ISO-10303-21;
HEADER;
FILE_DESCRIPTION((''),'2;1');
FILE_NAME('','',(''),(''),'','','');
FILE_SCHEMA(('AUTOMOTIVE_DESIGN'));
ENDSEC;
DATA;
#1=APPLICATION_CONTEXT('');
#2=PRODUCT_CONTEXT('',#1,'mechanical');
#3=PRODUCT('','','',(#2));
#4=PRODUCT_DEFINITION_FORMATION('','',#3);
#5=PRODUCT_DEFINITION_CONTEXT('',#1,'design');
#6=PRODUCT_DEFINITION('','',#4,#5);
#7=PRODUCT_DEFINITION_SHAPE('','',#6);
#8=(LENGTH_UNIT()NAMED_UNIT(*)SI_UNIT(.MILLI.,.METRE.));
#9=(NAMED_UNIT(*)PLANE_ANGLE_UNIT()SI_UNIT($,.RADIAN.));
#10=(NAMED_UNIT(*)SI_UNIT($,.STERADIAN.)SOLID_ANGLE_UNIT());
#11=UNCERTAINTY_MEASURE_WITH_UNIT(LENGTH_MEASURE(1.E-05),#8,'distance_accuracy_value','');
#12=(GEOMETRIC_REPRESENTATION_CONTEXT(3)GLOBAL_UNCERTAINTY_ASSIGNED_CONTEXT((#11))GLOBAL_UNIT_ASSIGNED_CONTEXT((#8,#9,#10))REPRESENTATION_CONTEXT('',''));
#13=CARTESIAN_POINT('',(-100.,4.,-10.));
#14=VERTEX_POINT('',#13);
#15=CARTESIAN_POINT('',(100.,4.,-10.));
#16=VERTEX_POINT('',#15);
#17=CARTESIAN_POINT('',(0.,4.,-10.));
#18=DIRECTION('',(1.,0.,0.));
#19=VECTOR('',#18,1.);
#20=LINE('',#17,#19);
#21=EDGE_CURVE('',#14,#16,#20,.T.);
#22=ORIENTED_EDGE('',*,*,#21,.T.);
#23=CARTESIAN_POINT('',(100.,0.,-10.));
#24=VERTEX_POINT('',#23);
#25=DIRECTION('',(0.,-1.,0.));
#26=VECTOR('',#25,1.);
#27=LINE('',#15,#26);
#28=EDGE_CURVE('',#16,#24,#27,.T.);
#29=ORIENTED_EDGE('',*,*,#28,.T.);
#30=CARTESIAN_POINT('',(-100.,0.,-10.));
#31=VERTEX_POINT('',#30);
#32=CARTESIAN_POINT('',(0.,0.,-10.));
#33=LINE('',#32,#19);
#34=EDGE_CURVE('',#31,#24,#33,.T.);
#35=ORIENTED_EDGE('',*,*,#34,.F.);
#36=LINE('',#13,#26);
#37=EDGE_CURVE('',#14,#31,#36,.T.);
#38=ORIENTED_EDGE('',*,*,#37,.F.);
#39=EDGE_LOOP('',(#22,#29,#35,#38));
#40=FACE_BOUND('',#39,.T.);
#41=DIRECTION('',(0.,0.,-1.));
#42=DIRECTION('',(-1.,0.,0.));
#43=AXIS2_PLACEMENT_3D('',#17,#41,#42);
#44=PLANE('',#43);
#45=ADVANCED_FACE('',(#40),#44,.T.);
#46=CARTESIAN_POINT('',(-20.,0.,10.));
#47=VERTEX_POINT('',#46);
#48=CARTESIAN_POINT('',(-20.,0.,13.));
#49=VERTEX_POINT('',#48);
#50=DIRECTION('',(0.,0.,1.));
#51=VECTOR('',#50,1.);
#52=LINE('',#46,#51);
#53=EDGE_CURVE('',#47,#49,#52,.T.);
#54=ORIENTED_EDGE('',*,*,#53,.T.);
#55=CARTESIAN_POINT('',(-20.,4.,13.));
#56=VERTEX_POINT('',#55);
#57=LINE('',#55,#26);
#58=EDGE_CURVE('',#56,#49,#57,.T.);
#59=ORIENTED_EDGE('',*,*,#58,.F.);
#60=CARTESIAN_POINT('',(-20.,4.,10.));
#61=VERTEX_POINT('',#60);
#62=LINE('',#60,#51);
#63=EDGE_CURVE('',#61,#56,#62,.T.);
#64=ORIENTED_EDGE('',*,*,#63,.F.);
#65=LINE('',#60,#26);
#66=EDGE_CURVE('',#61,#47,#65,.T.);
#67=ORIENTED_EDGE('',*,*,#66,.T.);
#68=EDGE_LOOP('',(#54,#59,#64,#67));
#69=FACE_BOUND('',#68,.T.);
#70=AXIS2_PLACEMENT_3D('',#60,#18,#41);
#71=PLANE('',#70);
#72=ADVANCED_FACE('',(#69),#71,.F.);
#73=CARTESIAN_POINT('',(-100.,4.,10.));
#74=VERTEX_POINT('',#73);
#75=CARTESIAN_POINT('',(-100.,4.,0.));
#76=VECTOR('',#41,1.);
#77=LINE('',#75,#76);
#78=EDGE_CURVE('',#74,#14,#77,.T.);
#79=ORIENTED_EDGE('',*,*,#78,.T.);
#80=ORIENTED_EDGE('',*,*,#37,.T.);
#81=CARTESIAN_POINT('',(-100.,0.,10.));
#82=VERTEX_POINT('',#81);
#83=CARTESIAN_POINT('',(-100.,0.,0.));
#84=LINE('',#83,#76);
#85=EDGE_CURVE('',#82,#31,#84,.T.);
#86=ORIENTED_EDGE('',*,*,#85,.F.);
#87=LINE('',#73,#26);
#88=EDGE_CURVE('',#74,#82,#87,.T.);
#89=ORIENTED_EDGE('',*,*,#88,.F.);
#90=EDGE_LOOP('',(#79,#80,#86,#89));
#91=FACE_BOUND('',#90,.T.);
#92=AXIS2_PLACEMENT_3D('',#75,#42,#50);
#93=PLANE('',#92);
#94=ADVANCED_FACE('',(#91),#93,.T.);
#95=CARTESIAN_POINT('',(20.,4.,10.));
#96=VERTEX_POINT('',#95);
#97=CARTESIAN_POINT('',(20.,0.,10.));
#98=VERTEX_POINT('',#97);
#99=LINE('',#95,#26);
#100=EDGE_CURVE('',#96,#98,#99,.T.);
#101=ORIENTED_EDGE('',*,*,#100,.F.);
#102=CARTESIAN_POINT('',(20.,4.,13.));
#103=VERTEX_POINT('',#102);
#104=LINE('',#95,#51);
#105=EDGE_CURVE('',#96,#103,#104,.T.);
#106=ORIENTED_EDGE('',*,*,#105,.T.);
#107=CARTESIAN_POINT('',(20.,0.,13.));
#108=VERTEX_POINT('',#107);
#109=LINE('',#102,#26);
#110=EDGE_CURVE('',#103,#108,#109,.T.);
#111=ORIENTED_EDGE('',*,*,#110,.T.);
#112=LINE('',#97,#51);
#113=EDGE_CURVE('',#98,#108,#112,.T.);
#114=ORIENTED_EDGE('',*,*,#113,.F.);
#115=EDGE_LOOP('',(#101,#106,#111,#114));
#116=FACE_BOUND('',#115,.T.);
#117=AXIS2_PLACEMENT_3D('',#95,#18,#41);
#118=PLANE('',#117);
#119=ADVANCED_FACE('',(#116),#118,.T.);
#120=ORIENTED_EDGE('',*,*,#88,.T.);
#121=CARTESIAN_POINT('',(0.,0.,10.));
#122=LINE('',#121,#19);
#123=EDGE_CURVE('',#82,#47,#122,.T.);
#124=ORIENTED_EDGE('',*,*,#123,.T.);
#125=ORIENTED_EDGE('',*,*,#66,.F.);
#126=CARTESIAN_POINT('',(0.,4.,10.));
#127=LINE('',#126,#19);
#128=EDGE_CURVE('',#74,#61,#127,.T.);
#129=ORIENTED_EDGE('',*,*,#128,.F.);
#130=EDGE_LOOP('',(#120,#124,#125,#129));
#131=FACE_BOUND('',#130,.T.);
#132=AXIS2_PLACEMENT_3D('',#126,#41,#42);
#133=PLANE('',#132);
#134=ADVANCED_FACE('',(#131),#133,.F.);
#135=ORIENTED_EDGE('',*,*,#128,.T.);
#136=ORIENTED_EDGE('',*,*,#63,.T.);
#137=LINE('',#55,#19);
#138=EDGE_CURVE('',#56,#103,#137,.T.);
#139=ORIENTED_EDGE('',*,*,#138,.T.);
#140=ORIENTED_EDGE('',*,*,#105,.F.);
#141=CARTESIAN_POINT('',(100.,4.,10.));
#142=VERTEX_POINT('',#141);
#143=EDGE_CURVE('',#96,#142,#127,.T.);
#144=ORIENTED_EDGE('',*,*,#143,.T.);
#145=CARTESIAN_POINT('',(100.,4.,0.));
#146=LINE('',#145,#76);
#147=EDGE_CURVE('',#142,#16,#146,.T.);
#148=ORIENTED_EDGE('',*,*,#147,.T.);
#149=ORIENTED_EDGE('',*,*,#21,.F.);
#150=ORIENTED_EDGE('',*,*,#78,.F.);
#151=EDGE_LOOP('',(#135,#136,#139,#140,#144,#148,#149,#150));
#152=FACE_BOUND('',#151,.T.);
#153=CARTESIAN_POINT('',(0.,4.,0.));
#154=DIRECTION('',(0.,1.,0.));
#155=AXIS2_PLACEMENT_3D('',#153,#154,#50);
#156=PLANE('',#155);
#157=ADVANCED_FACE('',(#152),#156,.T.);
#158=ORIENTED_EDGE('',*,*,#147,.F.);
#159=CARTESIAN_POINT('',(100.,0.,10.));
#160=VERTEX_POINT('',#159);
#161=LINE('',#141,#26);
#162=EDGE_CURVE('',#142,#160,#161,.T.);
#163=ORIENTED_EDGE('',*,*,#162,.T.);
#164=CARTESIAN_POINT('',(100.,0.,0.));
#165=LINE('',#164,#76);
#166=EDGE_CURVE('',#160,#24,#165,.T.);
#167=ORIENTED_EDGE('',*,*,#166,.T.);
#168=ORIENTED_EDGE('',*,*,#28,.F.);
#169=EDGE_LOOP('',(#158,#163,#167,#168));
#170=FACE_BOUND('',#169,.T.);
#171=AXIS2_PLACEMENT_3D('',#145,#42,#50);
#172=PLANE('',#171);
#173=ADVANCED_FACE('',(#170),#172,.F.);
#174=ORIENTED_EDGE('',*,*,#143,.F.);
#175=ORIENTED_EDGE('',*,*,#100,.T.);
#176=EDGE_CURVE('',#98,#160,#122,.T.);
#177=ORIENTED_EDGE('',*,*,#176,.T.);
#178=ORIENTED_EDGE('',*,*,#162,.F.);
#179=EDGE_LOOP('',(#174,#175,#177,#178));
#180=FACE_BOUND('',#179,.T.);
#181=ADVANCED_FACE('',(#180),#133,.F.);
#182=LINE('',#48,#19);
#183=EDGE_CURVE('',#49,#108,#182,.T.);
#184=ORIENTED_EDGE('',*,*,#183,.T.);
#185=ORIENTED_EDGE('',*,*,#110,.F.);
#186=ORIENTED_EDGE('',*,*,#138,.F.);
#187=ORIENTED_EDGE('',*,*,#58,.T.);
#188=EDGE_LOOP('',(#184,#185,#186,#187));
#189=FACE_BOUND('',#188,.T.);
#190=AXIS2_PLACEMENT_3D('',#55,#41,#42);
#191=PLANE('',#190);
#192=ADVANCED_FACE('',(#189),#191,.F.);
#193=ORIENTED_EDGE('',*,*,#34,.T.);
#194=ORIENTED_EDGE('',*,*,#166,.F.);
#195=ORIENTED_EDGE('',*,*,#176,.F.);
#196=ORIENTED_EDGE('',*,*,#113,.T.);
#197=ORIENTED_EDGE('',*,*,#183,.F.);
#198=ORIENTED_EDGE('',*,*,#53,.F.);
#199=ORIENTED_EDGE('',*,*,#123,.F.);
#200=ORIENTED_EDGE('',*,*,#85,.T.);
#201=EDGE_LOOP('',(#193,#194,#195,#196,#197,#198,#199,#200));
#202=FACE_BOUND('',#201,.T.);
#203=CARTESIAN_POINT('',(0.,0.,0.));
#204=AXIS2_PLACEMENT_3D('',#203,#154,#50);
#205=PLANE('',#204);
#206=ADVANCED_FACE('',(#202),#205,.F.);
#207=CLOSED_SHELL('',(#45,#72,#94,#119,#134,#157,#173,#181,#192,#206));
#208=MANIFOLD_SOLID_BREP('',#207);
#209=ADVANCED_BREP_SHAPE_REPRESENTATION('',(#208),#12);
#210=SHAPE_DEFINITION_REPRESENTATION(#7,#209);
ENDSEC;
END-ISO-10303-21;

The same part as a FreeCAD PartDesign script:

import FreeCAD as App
import Part
import Sketcher


def add_polygon(sketch, points):
    """Adds a closed chain of lines whose ends are joined by coincident constraints."""
    first, n = sketch.GeometryCount, len(points)
    for a, b in zip(points, points[1:] + points[:1]):
        sketch.addGeometry(Part.LineSegment(App.Vector(*a, 0), App.Vector(*b, 0)), False)
    for i in range(n):
        sketch.addConstraint(Sketcher.Constraint("Coincident", first + i, 2, first + (i + 1) % n, 1))

doc = App.newDocument("Part")
body = doc.addObject("PartDesign::Body", "Body")

sketch1 = doc.addObject("Sketcher::SketchObject", "Sketch")
body.addObject(sketch1)
sketch1.AttachmentSupport = (doc.XZ_Plane, [""])
sketch1.MapMode = "FlatFace"
add_polygon(sketch1, [(-100, -10), (-100, 10), (-20, 10), (-20, 13), (20, 13), (20, 10), (100, 10), (100, -10)])
sketch1.addConstraint([
    Sketcher.Constraint("Vertical", 0),
    Sketcher.Constraint("Horizontal", 1),
    Sketcher.Constraint("Vertical", 2),
    Sketcher.Constraint("Horizontal", 3),
    Sketcher.Constraint("Vertical", 4),
    Sketcher.Constraint("Horizontal", 5),
    Sketcher.Constraint("Vertical", 6),
    Sketcher.Constraint("Horizontal", 7),
    Sketcher.Constraint("Symmetric", 0, 2, 6, 2, -1, 1),
    Sketcher.Constraint("Symmetric", 1, 2, 4, 2, -2),
    Sketcher.Constraint("DistanceX", 1, 1, 1, 2, 80.0),
    Sketcher.Constraint("DistanceX", 3, 1, 3, 2, 40.0),
    Sketcher.Constraint("DistanceY", 0, 1, 0, 2, 20.0),
    Sketcher.Constraint("DistanceY", 2, 1, 2, 2, 3.0),
])
pad1 = doc.addObject("PartDesign::Pad", "Pad")
body.addObject(pad1)
pad1.Profile = sketch1
pad1.Length = 4
pad1.Reversed = True

doc.recompute()
